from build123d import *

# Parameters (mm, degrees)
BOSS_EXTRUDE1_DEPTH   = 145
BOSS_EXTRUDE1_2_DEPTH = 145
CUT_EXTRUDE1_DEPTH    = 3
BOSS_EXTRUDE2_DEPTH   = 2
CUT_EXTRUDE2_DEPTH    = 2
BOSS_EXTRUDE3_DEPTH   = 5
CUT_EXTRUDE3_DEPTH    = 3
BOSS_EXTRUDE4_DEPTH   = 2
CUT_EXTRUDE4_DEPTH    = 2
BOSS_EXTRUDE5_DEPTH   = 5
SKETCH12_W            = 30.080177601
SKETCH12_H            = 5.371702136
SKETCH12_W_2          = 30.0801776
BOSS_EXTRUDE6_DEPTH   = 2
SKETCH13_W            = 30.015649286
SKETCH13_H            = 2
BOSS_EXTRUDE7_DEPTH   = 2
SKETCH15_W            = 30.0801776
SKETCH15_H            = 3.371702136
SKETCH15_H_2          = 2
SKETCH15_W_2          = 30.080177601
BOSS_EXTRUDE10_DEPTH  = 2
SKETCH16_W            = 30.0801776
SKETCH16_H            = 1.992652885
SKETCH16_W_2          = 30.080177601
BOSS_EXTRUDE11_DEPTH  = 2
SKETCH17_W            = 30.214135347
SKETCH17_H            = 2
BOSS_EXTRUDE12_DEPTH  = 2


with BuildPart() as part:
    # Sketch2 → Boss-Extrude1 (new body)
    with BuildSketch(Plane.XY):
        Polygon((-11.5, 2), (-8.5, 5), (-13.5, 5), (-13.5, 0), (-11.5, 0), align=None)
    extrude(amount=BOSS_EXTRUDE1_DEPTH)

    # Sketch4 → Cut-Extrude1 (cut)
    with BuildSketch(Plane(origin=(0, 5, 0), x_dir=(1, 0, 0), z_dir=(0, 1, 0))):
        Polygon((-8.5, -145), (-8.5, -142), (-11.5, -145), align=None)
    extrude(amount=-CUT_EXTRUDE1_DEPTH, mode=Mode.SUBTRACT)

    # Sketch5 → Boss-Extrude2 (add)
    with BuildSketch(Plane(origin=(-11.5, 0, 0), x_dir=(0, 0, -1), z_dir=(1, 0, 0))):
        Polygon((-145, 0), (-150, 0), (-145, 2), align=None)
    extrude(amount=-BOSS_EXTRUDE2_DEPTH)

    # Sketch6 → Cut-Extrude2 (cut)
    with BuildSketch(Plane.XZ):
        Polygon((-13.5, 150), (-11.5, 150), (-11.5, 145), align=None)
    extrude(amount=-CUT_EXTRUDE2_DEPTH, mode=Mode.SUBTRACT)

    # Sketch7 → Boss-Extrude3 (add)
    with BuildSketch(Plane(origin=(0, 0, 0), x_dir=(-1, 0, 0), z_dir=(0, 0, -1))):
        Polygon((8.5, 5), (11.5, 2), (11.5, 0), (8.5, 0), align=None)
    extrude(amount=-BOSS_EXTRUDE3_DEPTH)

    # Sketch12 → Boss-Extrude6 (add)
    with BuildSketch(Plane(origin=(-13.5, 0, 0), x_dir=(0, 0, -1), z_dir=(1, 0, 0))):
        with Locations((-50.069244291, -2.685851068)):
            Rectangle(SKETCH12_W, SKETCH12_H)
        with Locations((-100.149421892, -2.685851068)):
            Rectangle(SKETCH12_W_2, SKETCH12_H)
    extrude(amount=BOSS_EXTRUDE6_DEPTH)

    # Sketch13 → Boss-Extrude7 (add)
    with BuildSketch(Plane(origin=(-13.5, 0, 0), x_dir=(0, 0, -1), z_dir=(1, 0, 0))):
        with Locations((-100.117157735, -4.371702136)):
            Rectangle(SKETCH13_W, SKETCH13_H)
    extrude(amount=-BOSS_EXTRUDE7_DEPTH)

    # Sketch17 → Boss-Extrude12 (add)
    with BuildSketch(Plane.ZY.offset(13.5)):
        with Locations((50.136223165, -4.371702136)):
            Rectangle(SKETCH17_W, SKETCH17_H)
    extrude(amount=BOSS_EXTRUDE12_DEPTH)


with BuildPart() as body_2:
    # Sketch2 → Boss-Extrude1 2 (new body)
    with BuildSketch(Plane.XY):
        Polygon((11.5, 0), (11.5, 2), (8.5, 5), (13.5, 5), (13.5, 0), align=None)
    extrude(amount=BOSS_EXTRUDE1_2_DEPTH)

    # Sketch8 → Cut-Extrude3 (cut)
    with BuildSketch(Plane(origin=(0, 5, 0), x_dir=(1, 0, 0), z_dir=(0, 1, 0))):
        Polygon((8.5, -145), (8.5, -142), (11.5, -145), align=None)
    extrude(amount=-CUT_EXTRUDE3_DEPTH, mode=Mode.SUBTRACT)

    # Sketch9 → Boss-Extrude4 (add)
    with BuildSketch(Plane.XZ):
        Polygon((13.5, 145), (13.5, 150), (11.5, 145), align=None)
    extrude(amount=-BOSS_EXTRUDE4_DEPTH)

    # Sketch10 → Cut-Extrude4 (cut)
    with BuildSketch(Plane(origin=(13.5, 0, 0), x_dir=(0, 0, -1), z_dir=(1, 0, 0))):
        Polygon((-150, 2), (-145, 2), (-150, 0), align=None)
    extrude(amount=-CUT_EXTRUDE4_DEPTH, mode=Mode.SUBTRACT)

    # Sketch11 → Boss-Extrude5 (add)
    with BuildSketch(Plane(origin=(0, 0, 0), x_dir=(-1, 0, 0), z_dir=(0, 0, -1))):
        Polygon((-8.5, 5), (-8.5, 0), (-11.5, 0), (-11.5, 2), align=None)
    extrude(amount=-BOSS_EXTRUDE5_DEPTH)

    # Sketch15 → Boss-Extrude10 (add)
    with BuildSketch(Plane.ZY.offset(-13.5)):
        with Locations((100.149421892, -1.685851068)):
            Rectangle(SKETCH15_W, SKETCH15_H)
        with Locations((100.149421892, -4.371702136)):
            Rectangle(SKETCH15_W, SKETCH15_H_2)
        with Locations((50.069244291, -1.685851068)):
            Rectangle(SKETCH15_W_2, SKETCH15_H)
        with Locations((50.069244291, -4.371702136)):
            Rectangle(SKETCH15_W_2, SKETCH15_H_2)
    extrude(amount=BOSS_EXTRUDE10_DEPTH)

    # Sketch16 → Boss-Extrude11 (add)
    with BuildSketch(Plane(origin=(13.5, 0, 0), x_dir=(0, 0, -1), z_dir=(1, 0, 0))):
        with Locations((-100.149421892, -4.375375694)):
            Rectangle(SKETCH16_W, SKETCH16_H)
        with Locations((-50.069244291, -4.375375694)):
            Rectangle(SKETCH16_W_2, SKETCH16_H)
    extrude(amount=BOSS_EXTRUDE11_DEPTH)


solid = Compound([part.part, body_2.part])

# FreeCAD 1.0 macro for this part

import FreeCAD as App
import Part
import Sketcher

V = App.Vector


def add_polygon(sketch, points):
    """Adds a closed chain of lines whose ends are joined by coincident constraints."""
    first, n = sketch.GeometryCount, len(points)
    for a, b in zip(points, points[1:] + points[:1]):
        sketch.addGeometry(Part.LineSegment(App.Vector(*a, 0), App.Vector(*b, 0)), False)
    for i in range(n):
        sketch.addConstraint(Sketcher.Constraint("Coincident", first + i, 2, first + (i + 1) % n, 1))

doc = App.newDocument("Part")
params = doc.addObject("Spreadsheet::Sheet", "Params")
for row, (alias, value) in enumerate([
    ("sketch1_width", "5 mm"),
    ("sketch1_width2", "2 mm"),
    ("pad1_length", "145 mm"),
    ("sketch2_width", "3 mm"),
    ("pocket1_length", "3 mm"),
    ("sketch3_width", "2 mm"),
    ("sketch3_height", "5 mm"),
    ("pad2_length", "2 mm"),
    ("sketch4_width", "2 mm"),
    ("sketch4_height", "5 mm"),
    ("pocket2_length", "2 mm"),
    ("sketch5_width", "3 mm"),
    ("sketch5_height", "5 mm"),
    ("sketch5_height2", "2 mm"),
    ("pad3_length", "5 mm"),
    ("pad4_length", "2 mm"),
    ("sketch7_width", "2 mm"),
    ("pad5_length", "2 mm"),
    ("sketch8_width", "2 mm"),
    ("pad6_length", "2 mm"),
    ("sketch9_width", "2 mm"),
    ("sketch9_width2", "5 mm"),
    ("pad7_length", "145 mm"),
    ("sketch10_width", "3 mm"),
    ("pocket3_length", "3 mm"),
    ("sketch11_width", "2 mm"),
    ("sketch11_height", "5 mm"),
    ("pad8_length", "2 mm"),
    ("sketch12_width", "2 mm"),
    ("sketch12_height", "5 mm"),
    ("pocket4_length", "2 mm"),
    ("sketch13_width", "3 mm"),
    ("sketch13_height", "5 mm"),
    ("sketch13_height2", "2 mm"),
    ("pad9_length", "5 mm"),
    ("pad10_length", "2 mm"),
    ("pad11_length", "2 mm"),
], start=1):
    params.set(f"A{row}", alias)
    params.set(f"B{row}", "=" + value)
    params.setAlias(f"B{row}", alias)

body = doc.addObject("PartDesign::Body", "Body")

# Sketch on XY plane
sketch1 = doc.addObject("Sketcher::SketchObject", "Sketch")
body.addObject(sketch1)
sketch1.AttachmentSupport = (doc.XY_Plane, [""])
sketch1.MapMode = "FlatFace"
add_polygon(sketch1, [(-11.5, 2), (-8.5, 5), (-13.5, 5), (-13.5, 0), (-11.5, 0)])  # lines 0-4
sketch1.addConstraint([
    Sketcher.Constraint("Horizontal", 1),
    Sketcher.Constraint("Vertical", 2),
    Sketcher.Constraint("Horizontal", 3),
    Sketcher.Constraint("Vertical", 4),
    Sketcher.Constraint("PointOnObject", 2, 2, -1),
    Sketcher.Constraint("Equal", 1, 2),
    Sketcher.Constraint("Equal", 3, 4),
    Sketcher.Constraint("DistanceX", 1, 2, 1, 1, 5.0),
    Sketcher.Constraint("DistanceX", 3, 1, 3, 2, 2.0),
    Sketcher.Constraint("DistanceX", 0, 2, -1, 1, 8.5),
])
sketch1.setExpression("Constraints[12]", "Params.sketch1_width")
sketch1.setExpression("Constraints[13]", "Params.sketch1_width2")
pad1 = doc.addObject("PartDesign::Pad", "Pad")
body.addObject(pad1)
pad1.Profile = sketch1
pad1.setExpression("Length", "Params.pad1_length")

# Sketch on XZ plane
sketch2 = doc.addObject("Sketcher::SketchObject", "Sketch001")
body.addObject(sketch2)
sketch2.AttachmentSupport = (doc.XZ_Plane, [""])
sketch2.MapMode = "FlatFace"
sketch2.AttachmentOffset = App.Placement(V(0, 0, -5), App.Rotation())
add_polygon(sketch2, [(-8.5, 145), (-8.5, 142), (-11.5, 145)])  # lines 0-2
sketch2.addConstraint([
    Sketcher.Constraint("Vertical", 0),
    Sketcher.Constraint("Horizontal", 2),
    Sketcher.Constraint("Equal", 2, 0),
    Sketcher.Constraint("DistanceX", 2, 1, 2, 2, 3.0),
    Sketcher.Constraint("DistanceY", -1, 1, 0, 2, 142.0),
    Sketcher.Constraint("DistanceX", 0, 2, -1, 1, 8.5),
])
sketch2.setExpression("Constraints[6]", "Params.sketch2_width")
pocket1 = doc.addObject("PartDesign::Pocket", "Pocket")
body.addObject(pocket1)
pocket1.Profile = sketch2
pocket1.setExpression("Length", "Params.pocket1_length")
pocket1.Reversed = True

# Sketch on YZ plane
sketch3 = doc.addObject("Sketcher::SketchObject", "Sketch002")
body.addObject(sketch3)
sketch3.AttachmentSupport = (doc.YZ_Plane, [""])
sketch3.MapMode = "FlatFace"
sketch3.AttachmentOffset = App.Placement(V(0, 0, -11.5), App.Rotation())
add_polygon(sketch3, [(0, 150), (0, 145), (2, 145)])  # lines 0-2
sketch3.addConstraint([
    Sketcher.Constraint("Vertical", 0),
    Sketcher.Constraint("Horizontal", 1),
    Sketcher.Constraint("PointOnObject", 0, 2, -2),
    Sketcher.Constraint("DistanceX", 1, 1, 1, 2, 2.0),
    Sketcher.Constraint("DistanceY", 0, 2, 0, 1, 5.0),
    Sketcher.Constraint("DistanceY", -1, 1, 0, 2, 145.0),
])
sketch3.setExpression("Constraints[6]", "Params.sketch3_width")
sketch3.setExpression("Constraints[7]", "Params.sketch3_height")
pad2 = doc.addObject("PartDesign::Pad", "Pad001")
body.addObject(pad2)
pad2.Profile = sketch3
pad2.setExpression("Length", "Params.pad2_length")
pad2.Reversed = True

# Sketch on XZ plane
sketch4 = doc.addObject("Sketcher::SketchObject", "Sketch003")
body.addObject(sketch4)
sketch4.AttachmentSupport = (doc.XZ_Plane, [""])
sketch4.MapMode = "FlatFace"
add_polygon(sketch4, [(-11.5, 150), (-13.5, 150), (-11.5, 145)])  # lines 0-2
sketch4.addConstraint([
    Sketcher.Constraint("Horizontal", 0),
    Sketcher.Constraint("Vertical", 2),
    Sketcher.Constraint("DistanceX", 0, 2, 0, 1, 2.0),
    Sketcher.Constraint("DistanceY", 2, 1, 2, 2, 5.0),
    Sketcher.Constraint("DistanceY", -1, 1, 0, 2, 150.0),
    Sketcher.Constraint("DistanceX", 0, 2, -1, 1, 13.5),
])
sketch4.setExpression("Constraints[5]", "Params.sketch4_width")
sketch4.setExpression("Constraints[6]", "Params.sketch4_height")
pocket2 = doc.addObject("PartDesign::Pocket", "Pocket001")
body.addObject(pocket2)
pocket2.Profile = sketch4
pocket2.setExpression("Length", "Params.pocket2_length")

# Sketch on XY plane
sketch5 = doc.addObject("Sketcher::SketchObject", "Sketch004")
body.addObject(sketch5)
sketch5.AttachmentSupport = (doc.XY_Plane, [""])
sketch5.MapMode = "FlatFace"
add_polygon(sketch5, [(-11.5, 2), (-8.5, 5), (-8.5, 0), (-11.5, 0)])  # lines 0-3
sketch5.addConstraint([
    Sketcher.Constraint("Vertical", 1),
    Sketcher.Constraint("Horizontal", 2),
    Sketcher.Constraint("Vertical", 3),
    Sketcher.Constraint("PointOnObject", 1, 2, -1),
    Sketcher.Constraint("DistanceX", 2, 2, 2, 1, 3.0),
    Sketcher.Constraint("DistanceY", 1, 2, 1, 1, 5.0),
    Sketcher.Constraint("DistanceY", 3, 1, 3, 2, 2.0),
    Sketcher.Constraint("DistanceX", 0, 2, -1, 1, 8.5),
])
sketch5.setExpression("Constraints[8]", "Params.sketch5_width")
sketch5.setExpression("Constraints[9]", "Params.sketch5_height")
sketch5.setExpression("Constraints[10]", "Params.sketch5_height2")
pad3 = doc.addObject("PartDesign::Pad", "Pad002")
body.addObject(pad3)
pad3.Profile = sketch5
pad3.setExpression("Length", "Params.pad3_length")

# Sketch on YZ plane
sketch6 = doc.addObject("Sketcher::SketchObject", "Sketch005")
body.addObject(sketch6)
sketch6.AttachmentSupport = (doc.YZ_Plane, [""])
sketch6.MapMode = "FlatFace"
sketch6.AttachmentOffset = App.Placement(V(0, 0, -13.5), App.Rotation())
add_polygon(sketch6, [(0, 65), (-5, 65), (-5, 35), (0, 35)])  # lines 0-3
add_polygon(sketch6, [(0, 115), (-5, 115), (-5, 85), (0, 85)])  # lines 4-7
sketch6.addConstraint([
    Sketcher.Constraint("Horizontal", 0),
    Sketcher.Constraint("Vertical", 1),
    Sketcher.Constraint("Horizontal", 2),
    Sketcher.Constraint("Vertical", 3),
    Sketcher.Constraint("Horizontal", 4),
    Sketcher.Constraint("Vertical", 5),
    Sketcher.Constraint("Horizontal", 6),
    Sketcher.Constraint("Vertical", 7),
    Sketcher.Constraint("PointOnObject", 2, 2, -2),
    Sketcher.Constraint("PointOnObject", 6, 2, -2),
    Sketcher.Constraint("Vertical", 1, 2, 4, 2),
    Sketcher.Constraint("Equal", 3, 5),
    Sketcher.Constraint("DistanceY", 0, 2, 5, 2, 20.0),
    Sketcher.Constraint("DistanceX", 0, 2, 0, 1, 5.371702),
    Sketcher.Constraint("DistanceY", 1, 2, 1, 1, 30.080178),
    Sketcher.Constraint("DistanceY", -1, 1, 4, 2, 115.189511),
])
pad4 = doc.addObject("PartDesign::Pad", "Pad003")
body.addObject(pad4)
pad4.Profile = sketch6
pad4.setExpression("Length", "Params.pad4_length")

# Sketch on YZ plane
sketch7 = doc.addObject("Sketcher::SketchObject", "Sketch006")
body.addObject(sketch7)
sketch7.AttachmentSupport = (doc.YZ_Plane, [""])
sketch7.MapMode = "FlatFace"
sketch7.AttachmentOffset = App.Placement(V(0, 0, -13.5), App.Rotation())
add_polygon(sketch7, [(-3.4, 115.1), (-5.4, 115.1), (-5.4, 85.1), (-3.4, 85.1)])  # lines 0-3
sketch7.addConstraint([
    Sketcher.Constraint("Horizontal", 0),
    Sketcher.Constraint("Vertical", 1),
    Sketcher.Constraint("Horizontal", 2),
    Sketcher.Constraint("Vertical", 3),
    Sketcher.Constraint("DistanceX", 0, 2, 0, 1, 2.0),
    Sketcher.Constraint("DistanceY", 1, 2, 1, 1, 30.015649),
    Sketcher.Constraint("DistanceX", 0, 2, -1, 1, 5.371702),
    Sketcher.Constraint("DistanceY", -1, 1, 0, 2, 115.124982),
])
sketch7.setExpression("Constraints[8]", "Params.sketch7_width")
pad5 = doc.addObject("PartDesign::Pad", "Pad004")
body.addObject(pad5)
pad5.Profile = sketch7
pad5.setExpression("Length", "Params.pad5_length")
pad5.Reversed = True

# Sketch on YZ plane
sketch8 = doc.addObject("Sketcher::SketchObject", "Sketch007")
body.addObject(sketch8)
sketch8.AttachmentSupport = (doc.YZ_Plane, [""])
sketch8.MapMode = "FlatFace"
sketch8.AttachmentOffset = App.Placement(V(0, 0, -13.5), App.Rotation())
add_polygon(sketch8, [(-3.4, 35), (-5.4, 35), (-5.4, 65.2), (-3.4, 65.2)])  # lines 0-3
sketch8.addConstraint([
    Sketcher.Constraint("Horizontal", 0),
    Sketcher.Constraint("Vertical", 1),
    Sketcher.Constraint("Horizontal", 2),
    Sketcher.Constraint("Vertical", 3),
    Sketcher.Constraint("DistanceX", 0, 2, 0, 1, 2.0),
    Sketcher.Constraint("DistanceY", 1, 1, 1, 2, 30.214135),
    Sketcher.Constraint("DistanceY", -1, 1, 1, 2, 65.243291),
    Sketcher.Constraint("DistanceX", 0, 2, -1, 1, 5.371702),
])
sketch8.setExpression("Constraints[8]", "Params.sketch8_width")
pad6 = doc.addObject("PartDesign::Pad", "Pad005")
body.addObject(pad6)
pad6.Profile = sketch8
pad6.setExpression("Length", "Params.pad6_length")
pad6.Reversed = True
body2 = doc.addObject("PartDesign::Body", "Body001")

# Sketch on XY plane
sketch9 = doc.addObject("Sketcher::SketchObject", "Sketch008")
body2.addObject(sketch9)
sketch9.AttachmentSupport = (doc.getObject("XY_Plane001"), [""])
sketch9.MapMode = "FlatFace"
add_polygon(sketch9, [(11.5, 2), (11.5, 0), (13.5, 0), (13.5, 5), (8.5, 5)])  # lines 0-4
sketch9.addConstraint([
    Sketcher.Constraint("Vertical", 0),
    Sketcher.Constraint("Horizontal", 1),
    Sketcher.Constraint("Vertical", 2),
    Sketcher.Constraint("Horizontal", 3),
    Sketcher.Constraint("PointOnObject", 0, 2, -1),
    Sketcher.Constraint("Equal", 1, 0),
    Sketcher.Constraint("Equal", 3, 2),
    Sketcher.Constraint("DistanceX", 1, 1, 1, 2, 2.0),
    Sketcher.Constraint("DistanceX", 3, 2, 3, 1, 5.0),
    Sketcher.Constraint("DistanceX", -1, 1, 0, 2, 11.5),
])
sketch9.setExpression("Constraints[12]", "Params.sketch9_width")
sketch9.setExpression("Constraints[13]", "Params.sketch9_width2")
pad7 = doc.addObject("PartDesign::Pad", "Pad006")
body2.addObject(pad7)
pad7.Profile = sketch9
pad7.setExpression("Length", "Params.pad7_length")

# Sketch on XZ plane
sketch10 = doc.addObject("Sketcher::SketchObject", "Sketch009")
body2.addObject(sketch10)
sketch10.AttachmentSupport = (doc.getObject("XZ_Plane001"), [""])
sketch10.MapMode = "FlatFace"
sketch10.AttachmentOffset = App.Placement(V(0, 0, -5), App.Rotation())
add_polygon(sketch10, [(8.5, 142), (8.5, 145), (11.5, 145)])  # lines 0-2
sketch10.addConstraint([
    Sketcher.Constraint("Vertical", 0),
    Sketcher.Constraint("Horizontal", 1),
    Sketcher.Constraint("Equal", 1, 0),
    Sketcher.Constraint("DistanceX", 1, 1, 1, 2, 3.0),
    Sketcher.Constraint("DistanceY", -1, 1, 0, 2, 145.0),
    Sketcher.Constraint("DistanceX", -1, 1, 0, 2, 8.5),
])
sketch10.setExpression("Constraints[6]", "Params.sketch10_width")
pocket3 = doc.addObject("PartDesign::Pocket", "Pocket002")
body2.addObject(pocket3)
pocket3.Profile = sketch10
pocket3.setExpression("Length", "Params.pocket3_length")
pocket3.Reversed = True

# Sketch on XZ plane
sketch11 = doc.addObject("Sketcher::SketchObject", "Sketch010")
body2.addObject(sketch11)
sketch11.AttachmentSupport = (doc.getObject("XZ_Plane001"), [""])
sketch11.MapMode = "FlatFace"
add_polygon(sketch11, [(13.5, 145), (13.5, 150), (11.5, 145)])  # lines 0-2
sketch11.addConstraint([
    Sketcher.Constraint("Vertical", 0),
    Sketcher.Constraint("Horizontal", 2),
    Sketcher.Constraint("DistanceX", 2, 1, 2, 2, 2.0),
    Sketcher.Constraint("DistanceY", 0, 1, 0, 2, 5.0),
    Sketcher.Constraint("DistanceY", -1, 1, 0, 2, 150.0),
    Sketcher.Constraint("DistanceX", -1, 1, 0, 2, 13.5),
])
sketch11.setExpression("Constraints[5]", "Params.sketch11_width")
sketch11.setExpression("Constraints[6]", "Params.sketch11_height")
pad8 = doc.addObject("PartDesign::Pad", "Pad007")
body2.addObject(pad8)
pad8.Profile = sketch11
pad8.setExpression("Length", "Params.pad8_length")
pad8.Reversed = True

# Sketch on YZ plane
sketch12 = doc.addObject("Sketcher::SketchObject", "Sketch011")
body2.addObject(sketch12)
sketch12.AttachmentSupport = (doc.getObject("YZ_Plane001"), [""])
sketch12.MapMode = "FlatFace"
sketch12.AttachmentOffset = App.Placement(V(0, 0, 13.5), App.Rotation())
add_polygon(sketch12, [(2, 145), (2, 150), (0, 150)])  # lines 0-2
sketch12.addConstraint([
    Sketcher.Constraint("Vertical", 0),
    Sketcher.Constraint("Horizontal", 1),
    Sketcher.Constraint("PointOnObject", 1, 2, -2),
    Sketcher.Constraint("DistanceX", 1, 2, 1, 1, 2.0),
    Sketcher.Constraint("DistanceY", 0, 1, 0, 2, 5.0),
    Sketcher.Constraint("DistanceY", -1, 1, 0, 2, 150.0),
])
sketch12.setExpression("Constraints[6]", "Params.sketch12_width")
sketch12.setExpression("Constraints[7]", "Params.sketch12_height")
pocket4 = doc.addObject("PartDesign::Pocket", "Pocket003")
body2.addObject(pocket4)
pocket4.Profile = sketch12
pocket4.setExpression("Length", "Params.pocket4_length")

# Sketch on XY plane
sketch13 = doc.addObject("Sketcher::SketchObject", "Sketch012")
body2.addObject(sketch13)
sketch13.AttachmentSupport = (doc.getObject("XY_Plane001"), [""])
sketch13.MapMode = "FlatFace"
add_polygon(sketch13, [(8.5, 0), (8.5, 5), (11.5, 2), (11.5, 0)])  # lines 0-3
sketch13.addConstraint([
    Sketcher.Constraint("Vertical", 0),
    Sketcher.Constraint("Vertical", 2),
    Sketcher.Constraint("Horizontal", 3),
    Sketcher.Constraint("PointOnObject", 2, 2, -1),
    Sketcher.Constraint("DistanceX", 3, 2, 3, 1, 3.0),
    Sketcher.Constraint("DistanceY", 0, 1, 0, 2, 5.0),
    Sketcher.Constraint("DistanceY", 2, 2, 2, 1, 2.0),
    Sketcher.Constraint("DistanceX", -1, 1, 0, 2, 8.5),
])
sketch13.setExpression("Constraints[8]", "Params.sketch13_width")
sketch13.setExpression("Constraints[9]", "Params.sketch13_height")
sketch13.setExpression("Constraints[10]", "Params.sketch13_height2")
pad9 = doc.addObject("PartDesign::Pad", "Pad008")
body2.addObject(pad9)
pad9.Profile = sketch13
pad9.setExpression("Length", "Params.pad9_length")

# Sketch on YZ plane
sketch14 = doc.addObject("Sketcher::SketchObject", "Sketch013")
body2.addObject(sketch14)
sketch14.AttachmentSupport = (doc.getObject("YZ_Plane001"), [""])
sketch14.MapMode = "FlatFace"
sketch14.AttachmentOffset = App.Placement(V(0, 0, 13.5), App.Rotation())
add_polygon(sketch14, [(0, 85), (-5, 85), (-5, 115), (0, 115)])  # lines 0-3
add_polygon(sketch14, [(0, 35), (-5, 35), (-5, 65), (0, 65)])  # lines 4-7
sketch14.addConstraint([
    Sketcher.Constraint("Horizontal", 0),
    Sketcher.Constraint("Vertical", 1),
    Sketcher.Constraint("Horizontal", 2),
    Sketcher.Constraint("Vertical", 3),
    Sketcher.Constraint("Horizontal", 4),
    Sketcher.Constraint("Vertical", 5),
    Sketcher.Constraint("Horizontal", 6),
    Sketcher.Constraint("Vertical", 7),
    Sketcher.Constraint("PointOnObject", 2, 2, -2),
    Sketcher.Constraint("PointOnObject", 6, 2, -2),
    Sketcher.Constraint("Vertical", 1, 2, 4, 2),
    Sketcher.Constraint("Equal", 3, 5),
    Sketcher.Constraint("DistanceY", 5, 2, 0, 2, 20.0),
    Sketcher.Constraint("DistanceX", 0, 2, 0, 1, 5.371702),
    Sketcher.Constraint("DistanceY", 1, 1, 1, 2, 30.080178),
    Sketcher.Constraint("DistanceY", -1, 1, 1, 2, 115.189511),
])
pad10 = doc.addObject("PartDesign::Pad", "Pad009")
body2.addObject(pad10)
pad10.Profile = sketch14
pad10.setExpression("Length", "Params.pad10_length")
pad10.Reversed = True

# Sketch on YZ plane
sketch15 = doc.addObject("Sketcher::SketchObject", "Sketch014")
body2.addObject(sketch15)
sketch15.AttachmentSupport = (doc.getObject("YZ_Plane001"), [""])
sketch15.MapMode = "FlatFace"
sketch15.AttachmentOffset = App.Placement(V(0, 0, 13.5), App.Rotation())
add_polygon(sketch15, [(-3.4, 115.2), (-5.4, 115.2), (-5.4, 85.1), (-3.4, 85.1)])  # lines 0-3
add_polygon(sketch15, [(-3.4, 65.1), (-5.4, 65.1), (-5.4, 35), (-3.4, 35)])  # lines 4-7
sketch15.addConstraint([
    Sketcher.Constraint("Horizontal", 0),
    Sketcher.Constraint("Vertical", 1),
    Sketcher.Constraint("Horizontal", 2),
    Sketcher.Constraint("Vertical", 3),
    Sketcher.Constraint("Horizontal", 4),
    Sketcher.Constraint("Vertical", 5),
    Sketcher.Constraint("Horizontal", 6),
    Sketcher.Constraint("Vertical", 7),
    Sketcher.Constraint("Vertical", 1, 2, 4, 2),
    Sketcher.Constraint("Vertical", 3, 2, 6, 2),
    Sketcher.Constraint("Equal", 3, 5),
    Sketcher.Constraint("DistanceY", 4, 2, 1, 2, 20.0),
    Sketcher.Constraint("DistanceX", 0, 2, 0, 1, 1.992653),
    Sketcher.Constraint("DistanceY", 1, 2, 1, 1, 30.080178),
    Sketcher.Constraint("DistanceY", -1, 1, 0, 2, 115.189511),
    Sketcher.Constraint("DistanceX", 2, 2, -1, 1, 3.379049),
])
pad11 = doc.addObject("PartDesign::Pad", "Pad010")
body2.addObject(pad11)
pad11.Profile = sketch15
pad11.setExpression("Length", "Params.pad11_length")

doc.recompute()
